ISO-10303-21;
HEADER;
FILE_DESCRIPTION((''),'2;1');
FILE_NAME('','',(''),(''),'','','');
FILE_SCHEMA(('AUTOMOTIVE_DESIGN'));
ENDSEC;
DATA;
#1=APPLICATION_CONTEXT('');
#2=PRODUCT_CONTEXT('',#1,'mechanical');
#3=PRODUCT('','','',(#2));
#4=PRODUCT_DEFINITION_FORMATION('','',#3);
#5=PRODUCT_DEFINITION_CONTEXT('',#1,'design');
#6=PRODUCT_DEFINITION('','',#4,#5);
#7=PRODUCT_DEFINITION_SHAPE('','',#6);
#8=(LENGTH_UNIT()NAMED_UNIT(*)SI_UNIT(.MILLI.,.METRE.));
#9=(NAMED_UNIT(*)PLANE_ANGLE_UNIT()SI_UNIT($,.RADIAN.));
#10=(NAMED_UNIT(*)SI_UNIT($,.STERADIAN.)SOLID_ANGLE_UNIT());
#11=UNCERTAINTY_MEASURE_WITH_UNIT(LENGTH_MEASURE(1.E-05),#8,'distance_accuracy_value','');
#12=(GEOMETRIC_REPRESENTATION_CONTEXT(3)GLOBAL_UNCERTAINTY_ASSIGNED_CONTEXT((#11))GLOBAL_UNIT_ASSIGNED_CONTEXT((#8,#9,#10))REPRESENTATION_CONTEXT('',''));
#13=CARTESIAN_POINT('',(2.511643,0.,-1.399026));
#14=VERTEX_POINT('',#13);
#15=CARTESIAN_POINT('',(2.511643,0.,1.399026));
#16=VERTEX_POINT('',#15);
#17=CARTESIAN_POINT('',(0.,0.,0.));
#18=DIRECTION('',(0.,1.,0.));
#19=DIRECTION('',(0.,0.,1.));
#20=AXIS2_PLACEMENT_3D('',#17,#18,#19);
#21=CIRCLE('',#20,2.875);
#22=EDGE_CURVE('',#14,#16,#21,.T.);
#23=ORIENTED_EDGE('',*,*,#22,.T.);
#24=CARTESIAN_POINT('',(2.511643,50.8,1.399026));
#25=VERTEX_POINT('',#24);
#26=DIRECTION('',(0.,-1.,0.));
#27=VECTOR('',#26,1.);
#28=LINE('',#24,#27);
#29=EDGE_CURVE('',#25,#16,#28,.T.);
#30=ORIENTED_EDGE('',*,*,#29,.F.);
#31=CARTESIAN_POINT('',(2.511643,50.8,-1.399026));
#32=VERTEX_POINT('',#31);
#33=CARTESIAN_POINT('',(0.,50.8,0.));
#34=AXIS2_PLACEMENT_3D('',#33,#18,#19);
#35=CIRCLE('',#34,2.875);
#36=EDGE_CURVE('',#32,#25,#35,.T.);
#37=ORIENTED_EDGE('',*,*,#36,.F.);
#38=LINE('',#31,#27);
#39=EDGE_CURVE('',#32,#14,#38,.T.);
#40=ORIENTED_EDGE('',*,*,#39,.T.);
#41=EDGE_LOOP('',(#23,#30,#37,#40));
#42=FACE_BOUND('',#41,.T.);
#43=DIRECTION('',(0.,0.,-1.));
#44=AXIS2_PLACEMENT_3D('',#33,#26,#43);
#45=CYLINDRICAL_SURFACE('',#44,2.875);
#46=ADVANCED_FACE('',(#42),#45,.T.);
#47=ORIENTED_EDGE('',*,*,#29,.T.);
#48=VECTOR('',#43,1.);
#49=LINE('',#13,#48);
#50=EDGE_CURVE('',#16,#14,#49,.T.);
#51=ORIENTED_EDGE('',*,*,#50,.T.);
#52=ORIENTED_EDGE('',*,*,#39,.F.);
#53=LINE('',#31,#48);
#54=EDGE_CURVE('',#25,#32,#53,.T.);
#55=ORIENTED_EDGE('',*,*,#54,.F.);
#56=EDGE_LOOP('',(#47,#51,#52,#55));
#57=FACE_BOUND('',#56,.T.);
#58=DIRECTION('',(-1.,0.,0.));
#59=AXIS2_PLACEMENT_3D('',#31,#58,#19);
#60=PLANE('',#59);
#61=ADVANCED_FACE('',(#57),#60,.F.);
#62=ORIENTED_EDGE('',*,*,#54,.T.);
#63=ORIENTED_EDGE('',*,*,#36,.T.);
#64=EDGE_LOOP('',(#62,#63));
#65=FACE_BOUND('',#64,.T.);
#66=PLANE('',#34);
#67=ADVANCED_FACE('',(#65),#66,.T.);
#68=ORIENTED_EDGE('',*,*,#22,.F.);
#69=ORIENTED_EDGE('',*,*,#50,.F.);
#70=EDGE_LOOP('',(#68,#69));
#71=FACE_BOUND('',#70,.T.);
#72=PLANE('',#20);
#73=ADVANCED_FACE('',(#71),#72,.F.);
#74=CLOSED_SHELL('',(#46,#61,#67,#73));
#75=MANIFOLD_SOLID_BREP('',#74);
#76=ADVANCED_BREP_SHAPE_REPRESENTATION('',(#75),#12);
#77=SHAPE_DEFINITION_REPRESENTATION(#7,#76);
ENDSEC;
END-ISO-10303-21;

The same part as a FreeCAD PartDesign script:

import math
import FreeCAD as App
import Part
import Sketcher

V = App.Vector

doc = App.newDocument("Part")
params = doc.addObject("Spreadsheet::Sheet", "Params")
for row, (alias, value) in enumerate([
    ("pad1_length", "2 in"),
], start=1):
    params.set(f"A{row}", alias)
    params.set(f"B{row}", "=" + value)
    params.setAlias(f"B{row}", alias)

body = doc.addObject("PartDesign::Body", "Body")

# Sketch on XZ plane
sketch1 = body.newObject("Sketcher::SketchObject", "Sketch")
sketch1.AttachmentSupport = (doc.getObject("XZ_Plane"), [""])
sketch1.MapMode = "FlatFace"
sketch1.addGeometry(Part.LineSegment(V(2.5, 1.4, 0), V(2.5, -1.4, 0)), False)
sketch1.addGeometry(Part.ArcOfCircle(Part.Circle(V(0, 0, 0), V(0, 0, 1), 2.9), math.radians(29), math.radians(331)), False)
sketch1.addConstraint(Sketcher.Constraint("Coincident", 0, 1, 1, 1))
sketch1.addConstraint(Sketcher.Constraint("Coincident", 1, 2, 0, 2))
sketch1.addConstraint(Sketcher.Constraint("Vertical", 0))
sketch1.addConstraint(Sketcher.Constraint("Coincident", 1, 3, -1, 1))
sketch1.addConstraint(Sketcher.Constraint("Radius", 1, 2.875))
sketch1.addConstraint(Sketcher.Constraint("DistanceY", 0, 2, 0, 1, 2.798052))
pad1 = body.newObject("PartDesign::Pad", "Pad")
pad1.Profile = sketch1
pad1.setExpression("Length", "Params.pad1_length")
pad1.Reversed = True

doc.recompute()
